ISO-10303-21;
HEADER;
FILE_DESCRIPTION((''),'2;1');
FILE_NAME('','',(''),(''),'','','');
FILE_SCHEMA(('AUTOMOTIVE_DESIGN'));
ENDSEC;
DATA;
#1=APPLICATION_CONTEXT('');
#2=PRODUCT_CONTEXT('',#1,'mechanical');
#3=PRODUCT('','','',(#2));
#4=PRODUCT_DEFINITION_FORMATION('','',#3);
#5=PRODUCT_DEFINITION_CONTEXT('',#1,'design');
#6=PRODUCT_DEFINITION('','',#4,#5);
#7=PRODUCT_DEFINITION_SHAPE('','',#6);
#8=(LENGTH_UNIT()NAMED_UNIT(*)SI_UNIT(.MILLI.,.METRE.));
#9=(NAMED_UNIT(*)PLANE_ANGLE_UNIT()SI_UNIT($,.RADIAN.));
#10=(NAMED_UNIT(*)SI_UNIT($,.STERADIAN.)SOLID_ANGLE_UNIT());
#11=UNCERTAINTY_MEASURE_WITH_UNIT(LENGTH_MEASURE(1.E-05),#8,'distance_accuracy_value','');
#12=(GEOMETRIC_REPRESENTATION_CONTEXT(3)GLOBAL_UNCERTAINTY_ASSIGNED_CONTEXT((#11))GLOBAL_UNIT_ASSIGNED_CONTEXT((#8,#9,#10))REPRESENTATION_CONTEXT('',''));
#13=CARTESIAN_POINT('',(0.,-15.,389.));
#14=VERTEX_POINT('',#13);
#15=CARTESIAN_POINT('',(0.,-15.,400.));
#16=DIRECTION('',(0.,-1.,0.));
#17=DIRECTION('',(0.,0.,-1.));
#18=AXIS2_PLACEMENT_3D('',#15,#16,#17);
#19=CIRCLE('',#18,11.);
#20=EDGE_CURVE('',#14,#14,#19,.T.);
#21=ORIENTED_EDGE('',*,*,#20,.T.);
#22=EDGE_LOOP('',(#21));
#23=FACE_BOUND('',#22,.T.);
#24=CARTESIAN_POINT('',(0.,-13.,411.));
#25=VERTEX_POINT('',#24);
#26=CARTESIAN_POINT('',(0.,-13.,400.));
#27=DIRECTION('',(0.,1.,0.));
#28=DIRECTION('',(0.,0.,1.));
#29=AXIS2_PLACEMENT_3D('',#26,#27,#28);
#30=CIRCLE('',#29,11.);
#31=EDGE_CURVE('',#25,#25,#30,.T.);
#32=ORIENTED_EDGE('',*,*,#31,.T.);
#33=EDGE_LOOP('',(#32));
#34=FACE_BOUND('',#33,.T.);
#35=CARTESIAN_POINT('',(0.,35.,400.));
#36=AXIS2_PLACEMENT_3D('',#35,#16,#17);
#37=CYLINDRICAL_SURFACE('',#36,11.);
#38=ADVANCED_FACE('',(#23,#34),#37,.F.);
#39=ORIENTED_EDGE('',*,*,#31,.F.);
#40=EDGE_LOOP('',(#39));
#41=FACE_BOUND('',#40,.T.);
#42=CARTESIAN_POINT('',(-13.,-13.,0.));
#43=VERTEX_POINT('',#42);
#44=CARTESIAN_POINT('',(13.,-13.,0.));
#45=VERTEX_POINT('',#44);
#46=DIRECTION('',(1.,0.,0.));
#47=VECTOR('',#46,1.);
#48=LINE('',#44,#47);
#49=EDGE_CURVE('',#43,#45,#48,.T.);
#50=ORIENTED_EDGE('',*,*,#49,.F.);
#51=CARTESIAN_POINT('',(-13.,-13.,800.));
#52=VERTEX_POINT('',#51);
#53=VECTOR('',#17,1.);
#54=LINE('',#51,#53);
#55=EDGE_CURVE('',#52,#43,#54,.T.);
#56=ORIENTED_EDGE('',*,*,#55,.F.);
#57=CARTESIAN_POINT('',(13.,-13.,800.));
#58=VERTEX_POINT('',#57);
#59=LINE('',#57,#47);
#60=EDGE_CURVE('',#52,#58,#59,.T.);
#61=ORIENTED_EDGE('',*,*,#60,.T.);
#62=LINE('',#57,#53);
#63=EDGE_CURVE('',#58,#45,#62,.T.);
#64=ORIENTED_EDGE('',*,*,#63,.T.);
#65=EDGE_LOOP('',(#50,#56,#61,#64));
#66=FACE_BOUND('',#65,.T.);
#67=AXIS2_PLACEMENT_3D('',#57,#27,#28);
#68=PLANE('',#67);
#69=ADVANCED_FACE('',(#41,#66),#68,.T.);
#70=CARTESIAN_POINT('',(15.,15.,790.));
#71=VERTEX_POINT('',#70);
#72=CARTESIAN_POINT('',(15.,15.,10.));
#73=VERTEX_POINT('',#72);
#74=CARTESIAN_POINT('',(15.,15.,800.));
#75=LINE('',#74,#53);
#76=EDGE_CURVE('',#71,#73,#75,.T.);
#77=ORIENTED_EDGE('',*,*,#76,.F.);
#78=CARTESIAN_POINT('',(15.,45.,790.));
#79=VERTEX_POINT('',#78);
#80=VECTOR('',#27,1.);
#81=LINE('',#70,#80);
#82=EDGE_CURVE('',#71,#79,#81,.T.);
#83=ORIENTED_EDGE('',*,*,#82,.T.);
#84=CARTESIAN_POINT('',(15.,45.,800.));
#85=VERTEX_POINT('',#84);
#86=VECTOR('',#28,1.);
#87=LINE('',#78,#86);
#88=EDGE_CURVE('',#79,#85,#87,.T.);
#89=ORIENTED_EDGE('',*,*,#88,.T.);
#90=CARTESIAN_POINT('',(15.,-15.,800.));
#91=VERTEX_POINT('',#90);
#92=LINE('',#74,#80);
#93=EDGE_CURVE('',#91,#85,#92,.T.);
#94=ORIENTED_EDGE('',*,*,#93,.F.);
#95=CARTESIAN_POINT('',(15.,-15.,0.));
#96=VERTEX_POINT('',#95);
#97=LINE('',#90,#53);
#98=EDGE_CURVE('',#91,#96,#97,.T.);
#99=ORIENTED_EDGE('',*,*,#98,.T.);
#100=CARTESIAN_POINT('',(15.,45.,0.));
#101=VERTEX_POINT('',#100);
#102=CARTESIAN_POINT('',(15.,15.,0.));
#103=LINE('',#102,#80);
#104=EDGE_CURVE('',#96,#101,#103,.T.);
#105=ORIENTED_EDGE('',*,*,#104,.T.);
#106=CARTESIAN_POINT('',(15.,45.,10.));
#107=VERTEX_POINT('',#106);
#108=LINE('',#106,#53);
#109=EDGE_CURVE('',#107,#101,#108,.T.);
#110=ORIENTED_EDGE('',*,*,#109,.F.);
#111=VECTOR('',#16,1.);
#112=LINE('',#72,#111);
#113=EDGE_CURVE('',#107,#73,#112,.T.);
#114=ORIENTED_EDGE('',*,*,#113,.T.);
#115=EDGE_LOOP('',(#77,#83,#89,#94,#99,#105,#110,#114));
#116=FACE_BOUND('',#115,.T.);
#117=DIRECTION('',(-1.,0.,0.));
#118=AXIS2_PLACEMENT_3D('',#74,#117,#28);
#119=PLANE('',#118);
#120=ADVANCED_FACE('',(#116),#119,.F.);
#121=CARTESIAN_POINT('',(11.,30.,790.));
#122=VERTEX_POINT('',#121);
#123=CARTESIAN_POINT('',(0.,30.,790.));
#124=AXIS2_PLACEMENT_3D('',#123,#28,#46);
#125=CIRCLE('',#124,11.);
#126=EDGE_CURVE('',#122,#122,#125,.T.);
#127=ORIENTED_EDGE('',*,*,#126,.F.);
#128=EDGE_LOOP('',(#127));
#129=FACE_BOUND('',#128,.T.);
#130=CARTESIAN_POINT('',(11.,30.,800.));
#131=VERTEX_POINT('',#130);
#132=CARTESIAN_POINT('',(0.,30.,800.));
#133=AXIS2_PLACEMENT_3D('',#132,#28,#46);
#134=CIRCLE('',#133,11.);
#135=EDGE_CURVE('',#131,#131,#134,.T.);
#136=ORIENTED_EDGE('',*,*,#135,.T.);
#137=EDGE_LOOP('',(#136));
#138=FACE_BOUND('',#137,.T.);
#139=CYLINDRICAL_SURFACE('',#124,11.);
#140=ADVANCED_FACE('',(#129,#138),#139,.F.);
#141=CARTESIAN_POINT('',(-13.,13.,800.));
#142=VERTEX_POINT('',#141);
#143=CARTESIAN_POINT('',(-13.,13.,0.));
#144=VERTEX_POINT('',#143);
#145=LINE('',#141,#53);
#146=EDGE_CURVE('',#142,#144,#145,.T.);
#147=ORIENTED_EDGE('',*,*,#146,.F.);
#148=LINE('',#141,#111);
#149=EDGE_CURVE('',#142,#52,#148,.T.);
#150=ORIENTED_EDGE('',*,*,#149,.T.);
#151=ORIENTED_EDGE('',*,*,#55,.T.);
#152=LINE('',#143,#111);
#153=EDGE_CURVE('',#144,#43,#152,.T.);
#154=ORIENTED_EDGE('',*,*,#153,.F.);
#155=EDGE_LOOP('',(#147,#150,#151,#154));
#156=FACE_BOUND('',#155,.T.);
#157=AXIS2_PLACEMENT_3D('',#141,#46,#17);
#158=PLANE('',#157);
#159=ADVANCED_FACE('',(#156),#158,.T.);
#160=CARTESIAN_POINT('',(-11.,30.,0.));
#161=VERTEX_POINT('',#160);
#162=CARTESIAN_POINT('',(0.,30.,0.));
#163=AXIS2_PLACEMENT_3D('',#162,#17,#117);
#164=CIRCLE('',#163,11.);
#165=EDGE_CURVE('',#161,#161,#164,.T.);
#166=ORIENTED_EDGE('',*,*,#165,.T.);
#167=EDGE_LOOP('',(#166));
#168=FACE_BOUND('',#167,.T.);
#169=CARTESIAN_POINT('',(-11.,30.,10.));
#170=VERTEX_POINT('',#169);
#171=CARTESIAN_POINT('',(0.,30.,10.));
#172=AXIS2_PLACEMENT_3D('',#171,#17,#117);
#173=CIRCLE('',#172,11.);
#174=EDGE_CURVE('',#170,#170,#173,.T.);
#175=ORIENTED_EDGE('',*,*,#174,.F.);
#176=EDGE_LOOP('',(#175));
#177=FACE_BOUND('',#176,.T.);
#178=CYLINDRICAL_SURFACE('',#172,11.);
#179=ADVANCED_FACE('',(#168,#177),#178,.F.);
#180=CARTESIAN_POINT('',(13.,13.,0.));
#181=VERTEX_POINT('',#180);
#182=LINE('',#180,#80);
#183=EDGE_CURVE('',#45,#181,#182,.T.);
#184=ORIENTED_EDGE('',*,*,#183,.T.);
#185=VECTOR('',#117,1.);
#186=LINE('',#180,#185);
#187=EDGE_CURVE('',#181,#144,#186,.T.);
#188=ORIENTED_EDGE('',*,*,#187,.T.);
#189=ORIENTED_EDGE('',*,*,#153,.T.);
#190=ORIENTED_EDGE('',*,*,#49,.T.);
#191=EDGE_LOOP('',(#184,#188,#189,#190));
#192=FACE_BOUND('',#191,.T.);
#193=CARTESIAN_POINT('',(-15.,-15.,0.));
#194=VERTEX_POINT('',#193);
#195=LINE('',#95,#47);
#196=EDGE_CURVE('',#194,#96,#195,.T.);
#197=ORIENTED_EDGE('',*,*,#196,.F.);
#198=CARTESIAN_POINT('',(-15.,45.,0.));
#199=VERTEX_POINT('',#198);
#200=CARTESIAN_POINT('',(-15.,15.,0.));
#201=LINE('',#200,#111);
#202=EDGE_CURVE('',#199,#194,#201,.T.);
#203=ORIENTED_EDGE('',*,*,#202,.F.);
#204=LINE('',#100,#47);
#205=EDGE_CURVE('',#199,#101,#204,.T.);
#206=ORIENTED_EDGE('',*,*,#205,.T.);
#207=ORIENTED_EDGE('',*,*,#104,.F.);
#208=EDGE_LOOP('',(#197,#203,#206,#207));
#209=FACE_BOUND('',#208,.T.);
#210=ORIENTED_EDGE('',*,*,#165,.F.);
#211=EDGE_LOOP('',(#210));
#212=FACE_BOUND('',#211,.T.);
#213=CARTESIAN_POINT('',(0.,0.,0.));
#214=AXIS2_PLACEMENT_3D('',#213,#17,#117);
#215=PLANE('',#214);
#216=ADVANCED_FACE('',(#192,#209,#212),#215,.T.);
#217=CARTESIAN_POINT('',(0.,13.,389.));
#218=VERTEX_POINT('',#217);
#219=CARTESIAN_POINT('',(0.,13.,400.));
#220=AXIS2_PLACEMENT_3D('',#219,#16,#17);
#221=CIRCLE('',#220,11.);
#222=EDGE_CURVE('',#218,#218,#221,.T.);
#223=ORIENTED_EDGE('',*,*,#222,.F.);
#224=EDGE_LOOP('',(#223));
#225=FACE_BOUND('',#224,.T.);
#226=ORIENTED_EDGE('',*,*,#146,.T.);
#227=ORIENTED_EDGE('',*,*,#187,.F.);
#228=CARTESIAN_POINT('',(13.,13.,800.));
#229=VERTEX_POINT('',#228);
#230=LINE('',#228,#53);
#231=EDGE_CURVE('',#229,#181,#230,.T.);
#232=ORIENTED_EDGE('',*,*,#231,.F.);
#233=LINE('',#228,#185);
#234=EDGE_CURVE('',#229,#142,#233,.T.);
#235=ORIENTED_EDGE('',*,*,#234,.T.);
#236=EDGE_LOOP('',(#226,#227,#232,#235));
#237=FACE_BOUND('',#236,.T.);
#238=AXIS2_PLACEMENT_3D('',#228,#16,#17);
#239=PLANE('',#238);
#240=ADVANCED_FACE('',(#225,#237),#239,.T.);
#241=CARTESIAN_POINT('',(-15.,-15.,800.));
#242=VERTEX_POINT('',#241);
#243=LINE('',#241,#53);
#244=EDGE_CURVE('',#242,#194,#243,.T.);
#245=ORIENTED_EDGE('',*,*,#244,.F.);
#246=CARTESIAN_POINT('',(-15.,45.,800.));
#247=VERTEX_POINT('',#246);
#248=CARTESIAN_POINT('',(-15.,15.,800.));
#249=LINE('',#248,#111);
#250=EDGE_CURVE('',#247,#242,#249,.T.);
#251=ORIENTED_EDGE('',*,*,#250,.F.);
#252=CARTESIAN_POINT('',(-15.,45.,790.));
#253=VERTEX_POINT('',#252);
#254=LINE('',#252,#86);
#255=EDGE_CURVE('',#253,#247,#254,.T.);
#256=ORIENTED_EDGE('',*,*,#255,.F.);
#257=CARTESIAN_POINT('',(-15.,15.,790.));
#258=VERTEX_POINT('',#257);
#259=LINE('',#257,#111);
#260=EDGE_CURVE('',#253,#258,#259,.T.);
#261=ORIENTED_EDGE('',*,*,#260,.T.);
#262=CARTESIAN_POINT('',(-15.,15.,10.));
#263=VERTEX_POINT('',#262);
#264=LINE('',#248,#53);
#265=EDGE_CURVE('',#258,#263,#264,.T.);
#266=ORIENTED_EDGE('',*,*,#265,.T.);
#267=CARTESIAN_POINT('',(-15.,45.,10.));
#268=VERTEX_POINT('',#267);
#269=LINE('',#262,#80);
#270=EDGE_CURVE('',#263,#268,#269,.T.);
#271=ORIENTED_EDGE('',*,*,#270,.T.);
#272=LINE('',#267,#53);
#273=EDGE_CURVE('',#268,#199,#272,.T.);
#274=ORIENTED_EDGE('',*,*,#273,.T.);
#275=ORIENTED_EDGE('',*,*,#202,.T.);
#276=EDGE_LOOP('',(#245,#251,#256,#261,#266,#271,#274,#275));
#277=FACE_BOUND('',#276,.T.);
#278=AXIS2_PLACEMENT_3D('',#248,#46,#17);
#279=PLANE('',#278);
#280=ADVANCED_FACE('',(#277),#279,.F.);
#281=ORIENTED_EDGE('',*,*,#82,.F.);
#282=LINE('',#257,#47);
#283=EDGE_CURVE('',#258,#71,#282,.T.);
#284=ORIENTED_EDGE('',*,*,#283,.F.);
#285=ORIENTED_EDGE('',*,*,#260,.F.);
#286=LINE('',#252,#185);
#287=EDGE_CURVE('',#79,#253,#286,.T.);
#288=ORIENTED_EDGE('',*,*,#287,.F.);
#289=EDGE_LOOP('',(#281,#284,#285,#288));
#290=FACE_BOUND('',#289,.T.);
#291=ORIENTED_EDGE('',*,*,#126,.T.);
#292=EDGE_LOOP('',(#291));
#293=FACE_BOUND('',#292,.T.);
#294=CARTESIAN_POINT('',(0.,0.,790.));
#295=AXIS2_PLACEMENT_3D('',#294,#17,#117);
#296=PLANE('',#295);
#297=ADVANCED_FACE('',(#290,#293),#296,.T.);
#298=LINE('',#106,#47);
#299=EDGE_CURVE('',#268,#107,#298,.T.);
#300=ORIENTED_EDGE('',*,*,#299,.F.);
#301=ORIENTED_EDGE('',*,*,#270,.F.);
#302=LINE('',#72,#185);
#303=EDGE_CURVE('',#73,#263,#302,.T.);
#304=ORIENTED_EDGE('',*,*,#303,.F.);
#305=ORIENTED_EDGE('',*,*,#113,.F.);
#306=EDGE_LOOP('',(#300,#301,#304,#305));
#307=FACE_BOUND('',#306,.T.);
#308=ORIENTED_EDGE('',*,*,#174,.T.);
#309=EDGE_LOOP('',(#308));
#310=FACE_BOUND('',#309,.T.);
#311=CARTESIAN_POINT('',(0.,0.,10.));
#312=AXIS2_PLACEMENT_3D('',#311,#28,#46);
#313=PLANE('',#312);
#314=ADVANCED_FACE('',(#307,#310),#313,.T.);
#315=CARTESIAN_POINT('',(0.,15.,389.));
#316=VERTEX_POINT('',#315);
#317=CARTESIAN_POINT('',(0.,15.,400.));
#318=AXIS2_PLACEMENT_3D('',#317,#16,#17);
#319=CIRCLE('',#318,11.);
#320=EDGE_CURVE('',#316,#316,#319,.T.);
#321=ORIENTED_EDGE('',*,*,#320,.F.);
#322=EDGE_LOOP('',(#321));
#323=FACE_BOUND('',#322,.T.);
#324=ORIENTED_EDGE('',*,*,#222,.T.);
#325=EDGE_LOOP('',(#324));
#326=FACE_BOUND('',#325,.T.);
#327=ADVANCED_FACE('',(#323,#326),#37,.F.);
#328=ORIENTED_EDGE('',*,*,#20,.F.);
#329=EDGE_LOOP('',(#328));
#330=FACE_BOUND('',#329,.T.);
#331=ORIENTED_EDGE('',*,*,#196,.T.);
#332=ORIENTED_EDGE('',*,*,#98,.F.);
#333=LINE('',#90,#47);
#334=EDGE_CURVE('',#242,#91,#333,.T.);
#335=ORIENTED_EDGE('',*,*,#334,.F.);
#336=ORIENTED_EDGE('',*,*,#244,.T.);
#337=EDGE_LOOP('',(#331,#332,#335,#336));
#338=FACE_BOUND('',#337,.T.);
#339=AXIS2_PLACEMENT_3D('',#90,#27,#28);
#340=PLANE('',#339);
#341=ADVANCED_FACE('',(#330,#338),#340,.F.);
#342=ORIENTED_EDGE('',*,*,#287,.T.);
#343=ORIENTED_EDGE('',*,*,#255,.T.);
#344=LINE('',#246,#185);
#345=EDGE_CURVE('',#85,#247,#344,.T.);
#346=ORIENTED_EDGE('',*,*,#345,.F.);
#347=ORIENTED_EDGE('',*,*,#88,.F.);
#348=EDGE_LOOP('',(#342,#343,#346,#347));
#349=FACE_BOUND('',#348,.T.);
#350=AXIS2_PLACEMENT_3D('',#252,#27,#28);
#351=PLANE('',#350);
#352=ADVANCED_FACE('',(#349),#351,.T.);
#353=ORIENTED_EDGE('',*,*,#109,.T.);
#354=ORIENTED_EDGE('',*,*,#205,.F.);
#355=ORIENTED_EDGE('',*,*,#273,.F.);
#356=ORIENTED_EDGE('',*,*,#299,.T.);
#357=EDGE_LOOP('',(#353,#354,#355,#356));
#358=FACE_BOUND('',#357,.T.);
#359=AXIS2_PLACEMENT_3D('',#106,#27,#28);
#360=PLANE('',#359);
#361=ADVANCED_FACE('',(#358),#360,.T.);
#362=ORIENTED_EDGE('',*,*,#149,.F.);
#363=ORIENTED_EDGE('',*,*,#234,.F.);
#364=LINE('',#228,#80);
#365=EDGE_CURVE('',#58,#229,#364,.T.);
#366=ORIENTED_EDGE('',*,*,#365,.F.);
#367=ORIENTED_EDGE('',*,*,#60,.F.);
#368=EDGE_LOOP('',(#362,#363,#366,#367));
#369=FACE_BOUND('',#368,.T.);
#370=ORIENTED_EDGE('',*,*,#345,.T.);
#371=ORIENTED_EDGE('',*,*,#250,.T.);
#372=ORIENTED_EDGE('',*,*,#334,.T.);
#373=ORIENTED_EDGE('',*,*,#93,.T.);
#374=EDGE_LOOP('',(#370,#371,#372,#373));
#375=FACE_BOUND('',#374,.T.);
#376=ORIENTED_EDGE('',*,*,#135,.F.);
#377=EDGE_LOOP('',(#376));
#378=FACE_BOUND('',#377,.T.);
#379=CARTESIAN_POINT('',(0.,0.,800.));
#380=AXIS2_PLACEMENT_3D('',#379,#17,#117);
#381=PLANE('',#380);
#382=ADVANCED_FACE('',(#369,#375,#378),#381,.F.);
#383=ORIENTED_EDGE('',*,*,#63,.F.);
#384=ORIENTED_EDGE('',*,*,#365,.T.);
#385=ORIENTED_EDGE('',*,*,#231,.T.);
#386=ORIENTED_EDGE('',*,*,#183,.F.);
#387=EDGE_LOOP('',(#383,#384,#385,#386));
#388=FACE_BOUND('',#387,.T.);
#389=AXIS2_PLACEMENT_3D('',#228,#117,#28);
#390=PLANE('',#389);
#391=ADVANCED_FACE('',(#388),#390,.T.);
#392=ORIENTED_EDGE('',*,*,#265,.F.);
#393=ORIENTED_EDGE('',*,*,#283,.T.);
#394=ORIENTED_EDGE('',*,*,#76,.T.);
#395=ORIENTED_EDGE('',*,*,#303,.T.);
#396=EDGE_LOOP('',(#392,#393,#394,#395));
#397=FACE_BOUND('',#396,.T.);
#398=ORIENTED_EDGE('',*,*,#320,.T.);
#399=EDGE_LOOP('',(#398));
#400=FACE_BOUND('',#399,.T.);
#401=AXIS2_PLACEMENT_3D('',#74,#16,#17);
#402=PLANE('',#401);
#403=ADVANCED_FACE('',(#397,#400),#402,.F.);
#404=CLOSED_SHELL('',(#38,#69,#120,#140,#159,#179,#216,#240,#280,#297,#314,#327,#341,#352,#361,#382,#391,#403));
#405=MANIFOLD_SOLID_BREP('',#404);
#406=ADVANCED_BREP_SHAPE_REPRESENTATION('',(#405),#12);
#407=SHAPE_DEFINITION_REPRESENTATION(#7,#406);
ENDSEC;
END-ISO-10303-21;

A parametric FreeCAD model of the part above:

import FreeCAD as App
import Part
import Sketcher


def add_polygon(sketch, points):
    """Adds a closed chain of lines whose ends are joined by coincident constraints."""
    first, n = sketch.GeometryCount, len(points)
    for a, b in zip(points, points[1:] + points[:1]):
        sketch.addGeometry(Part.LineSegment(App.Vector(*a, 0), App.Vector(*b, 0)), False)
    for i in range(n):
        sketch.addConstraint(Sketcher.Constraint("Coincident", first + i, 2, first + (i + 1) % n, 1))

doc = App.newDocument("Part")
body = doc.addObject("PartDesign::Body", "Body")

sketch1 = body.newObject("Sketcher::SketchObject", "Sketch")
sketch1.AttachmentSupport = (doc.getObject("XY_Plane"), [""])
sketch1.MapMode = "FlatFace"
add_polygon(sketch1, [(-15, 15), (-15, -15), (15, -15), (15, 15)])
add_polygon(sketch1, [(13, -13), (-13, -13), (-13, 13), (13, 13)])
sketch1.addConstraint([
    Sketcher.Constraint("Vertical", 0),
    Sketcher.Constraint("Horizontal", 1),
    Sketcher.Constraint("Vertical", 2),
    Sketcher.Constraint("Horizontal", 3),
    Sketcher.Constraint("Horizontal", 4),
    Sketcher.Constraint("Vertical", 5),
    Sketcher.Constraint("Horizontal", 6),
    Sketcher.Constraint("Vertical", 7),
    Sketcher.Constraint("Symmetric", 0, 2, 2, 2, -1, 1),
    Sketcher.Constraint("Symmetric", 4, 2, 6, 2, -1, 1),
    Sketcher.Constraint("Equal", 3, 0),
    Sketcher.Constraint("Equal", 6, 5),
    Sketcher.Constraint("DistanceX", 1, 1, 1, 2, 30.0),
    Sketcher.Constraint("DistanceX", 4, 2, 4, 1, 26.0),
])
pad1 = body.newObject("PartDesign::Pad", "Pad")
pad1.Profile = sketch1
pad1.Length = 800

sketch2 = body.newObject("Sketcher::SketchObject", "Sketch001")
sketch2.AttachmentSupport = (doc.getObject("XY_Plane"), [""])
sketch2.MapMode = "FlatFace"
add_polygon(sketch2, [(15, 45), (15, 15), (-15, 15), (-15, 45)])
sketch2.addGeometry(Part.Circle(App.Vector(0, 30, 0), App.Vector(0, 0, 1), 11), False)
sketch2.addConstraint([
    Sketcher.Constraint("Vertical", 0),
    Sketcher.Constraint("Horizontal", 1),
    Sketcher.Constraint("Vertical", 2),
    Sketcher.Constraint("Horizontal", 3),
    Sketcher.Constraint("PointOnObject", 4, 3, -2),
    Sketcher.Constraint("Equal", 3, 0),
    Sketcher.Constraint("Diameter", 4, 22.0),
    Sketcher.Constraint("DistanceX", 1, 2, 1, 1, 30.0),
    Sketcher.Constraint("DistanceY", -1, 1, 4, 3, 30.0),
    Sketcher.Constraint("DistanceX", -1, 1, 0, 2, 15.0),
    Sketcher.Constraint("DistanceY", -1, 1, 0, 2, 15.0),
])
pad2 = body.newObject("PartDesign::Pad", "Pad001")
pad2.Profile = sketch2
pad2.Length = 10

sketch3 = body.newObject("Sketcher::SketchObject", "Sketch002")
sketch3.AttachmentSupport = (doc.getObject("XY_Plane"), [""])
sketch3.MapMode = "FlatFace"
sketch3.AttachmentOffset = App.Placement(App.Vector(0, 0, 790), App.Rotation())
add_polygon(sketch3, [(-15, 45), (-15, 15), (15, 15), (15, 45)])
sketch3.addGeometry(Part.Circle(App.Vector(0, 30, 0), App.Vector(0, 0, 1), 11), False)
sketch3.addConstraint([
    Sketcher.Constraint("Vertical", 0),
    Sketcher.Constraint("Horizontal", 1),
    Sketcher.Constraint("Vertical", 2),
    Sketcher.Constraint("Horizontal", 3),
    Sketcher.Constraint("PointOnObject", 4, 3, -2),
    Sketcher.Constraint("Equal", 3, 0),
    Sketcher.Constraint("Diameter", 4, 22.0),
    Sketcher.Constraint("DistanceX", 1, 1, 1, 2, 30.0),
    Sketcher.Constraint("DistanceY", -1, 1, 4, 3, 30.0),
    Sketcher.Constraint("DistanceX", 0, 2, -1, 1, 15.0),
    Sketcher.Constraint("DistanceY", -1, 1, 0, 2, 15.0),
])
pad3 = body.newObject("PartDesign::Pad", "Pad002")
pad3.Profile = sketch3
pad3.Length = 10

sketch4 = body.newObject("Sketcher::SketchObject", "Sketch003")
sketch4.AttachmentSupport = (doc.getObject("XZ_Plane"), [""])
sketch4.MapMode = "FlatFace"
sketch4.AttachmentOffset = App.Placement(App.Vector(0, 0, 15), App.Rotation())
sketch4.addGeometry(Part.Circle(App.Vector(0, 400, 0), App.Vector(0, 0, 1), 11), False)
sketch4.addConstraint([
    Sketcher.Constraint("PointOnObject", 0, 3, -2),
    Sketcher.Constraint("Diameter", 0, 22.0),
    Sketcher.Constraint("DistanceY", -1, 1, 0, 3, 400.0),
])
pocket1 = body.newObject("PartDesign::Pocket", "Pocket")
pocket1.Profile = sketch4
pocket1.Length = 50

doc.recompute()
